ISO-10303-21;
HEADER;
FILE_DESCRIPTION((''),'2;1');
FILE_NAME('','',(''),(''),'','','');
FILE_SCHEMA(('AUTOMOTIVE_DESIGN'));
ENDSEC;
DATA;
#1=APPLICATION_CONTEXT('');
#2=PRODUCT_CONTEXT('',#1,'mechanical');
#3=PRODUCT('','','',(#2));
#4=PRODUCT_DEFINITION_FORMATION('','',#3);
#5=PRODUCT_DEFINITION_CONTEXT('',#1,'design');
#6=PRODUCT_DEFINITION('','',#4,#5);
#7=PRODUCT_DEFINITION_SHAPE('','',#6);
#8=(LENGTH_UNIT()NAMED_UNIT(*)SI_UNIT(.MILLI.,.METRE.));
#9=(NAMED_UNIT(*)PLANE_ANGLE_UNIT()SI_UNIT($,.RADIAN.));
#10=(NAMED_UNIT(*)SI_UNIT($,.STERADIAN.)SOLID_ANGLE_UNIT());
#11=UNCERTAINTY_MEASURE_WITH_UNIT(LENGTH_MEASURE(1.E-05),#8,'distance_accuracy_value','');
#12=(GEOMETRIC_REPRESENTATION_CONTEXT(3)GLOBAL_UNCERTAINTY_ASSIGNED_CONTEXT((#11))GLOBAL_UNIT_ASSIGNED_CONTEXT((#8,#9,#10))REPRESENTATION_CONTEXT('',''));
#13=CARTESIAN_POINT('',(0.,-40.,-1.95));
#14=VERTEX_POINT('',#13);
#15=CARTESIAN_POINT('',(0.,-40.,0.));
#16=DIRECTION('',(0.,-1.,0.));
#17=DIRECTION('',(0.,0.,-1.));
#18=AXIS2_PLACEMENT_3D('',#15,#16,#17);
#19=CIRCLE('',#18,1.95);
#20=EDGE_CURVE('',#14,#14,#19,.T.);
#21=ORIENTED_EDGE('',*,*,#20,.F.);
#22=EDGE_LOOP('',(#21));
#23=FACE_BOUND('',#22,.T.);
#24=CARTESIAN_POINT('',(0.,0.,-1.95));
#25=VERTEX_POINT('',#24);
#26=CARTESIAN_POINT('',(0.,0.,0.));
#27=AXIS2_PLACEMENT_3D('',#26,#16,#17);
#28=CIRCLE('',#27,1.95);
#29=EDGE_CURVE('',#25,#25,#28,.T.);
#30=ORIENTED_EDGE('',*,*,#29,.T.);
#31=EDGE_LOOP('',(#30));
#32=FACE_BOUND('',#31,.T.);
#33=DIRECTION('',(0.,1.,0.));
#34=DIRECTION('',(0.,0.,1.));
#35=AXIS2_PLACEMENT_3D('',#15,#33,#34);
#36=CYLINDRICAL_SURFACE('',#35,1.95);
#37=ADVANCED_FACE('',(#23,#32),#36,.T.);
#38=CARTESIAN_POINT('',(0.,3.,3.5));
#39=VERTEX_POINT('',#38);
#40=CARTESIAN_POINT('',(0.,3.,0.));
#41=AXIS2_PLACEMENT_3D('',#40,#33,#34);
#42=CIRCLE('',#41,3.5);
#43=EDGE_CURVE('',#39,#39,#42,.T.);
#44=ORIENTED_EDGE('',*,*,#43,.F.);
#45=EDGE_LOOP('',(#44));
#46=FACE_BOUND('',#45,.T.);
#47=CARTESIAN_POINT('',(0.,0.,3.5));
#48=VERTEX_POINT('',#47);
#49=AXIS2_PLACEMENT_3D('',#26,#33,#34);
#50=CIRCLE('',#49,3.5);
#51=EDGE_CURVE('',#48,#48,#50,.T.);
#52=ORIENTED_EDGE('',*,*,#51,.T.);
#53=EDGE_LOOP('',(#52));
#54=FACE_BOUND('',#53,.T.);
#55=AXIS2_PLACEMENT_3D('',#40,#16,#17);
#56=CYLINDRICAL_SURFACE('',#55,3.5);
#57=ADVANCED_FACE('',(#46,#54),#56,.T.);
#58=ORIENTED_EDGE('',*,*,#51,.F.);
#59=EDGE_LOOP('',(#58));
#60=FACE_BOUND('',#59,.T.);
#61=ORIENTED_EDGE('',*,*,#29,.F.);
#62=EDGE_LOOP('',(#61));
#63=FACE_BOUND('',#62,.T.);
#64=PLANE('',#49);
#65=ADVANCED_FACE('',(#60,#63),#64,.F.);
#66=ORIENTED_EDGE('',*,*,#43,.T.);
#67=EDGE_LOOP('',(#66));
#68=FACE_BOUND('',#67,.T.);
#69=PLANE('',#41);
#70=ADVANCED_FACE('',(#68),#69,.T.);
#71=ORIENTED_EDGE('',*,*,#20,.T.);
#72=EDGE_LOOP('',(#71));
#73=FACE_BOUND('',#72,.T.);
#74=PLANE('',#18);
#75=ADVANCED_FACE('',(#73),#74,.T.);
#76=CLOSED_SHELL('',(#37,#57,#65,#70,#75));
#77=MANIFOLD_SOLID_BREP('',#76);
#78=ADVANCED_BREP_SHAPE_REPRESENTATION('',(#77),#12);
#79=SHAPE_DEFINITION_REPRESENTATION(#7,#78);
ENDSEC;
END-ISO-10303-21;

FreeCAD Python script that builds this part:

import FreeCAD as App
import Part
import Sketcher
from FreeCAD import Vector

doc = App.newDocument("Part")
params = doc.addObject("Spreadsheet::Sheet", "Params")
for row, (alias, value) in enumerate([
    ("sketch1_diameter", "7 mm"),
    ("pad1_length", "3 mm"),
    ("sketch2_diameter", "3.9 mm"),
    ("pad2_length", "40 mm"),
], start=1):
    params.set(f"A{row}", alias)
    params.set(f"B{row}", "=" + value)
    params.setAlias(f"B{row}", alias)

body = doc.addObject("PartDesign::Body", "Body")

sketch1 = doc.addObject("Sketcher::SketchObject", "Sketch")
body.addObject(sketch1)
sketch1.AttachmentSupport = (doc.XZ_Plane, [""])
sketch1.MapMode = "FlatFace"
sketch1.addGeometry(Part.Circle(Vector(0, 0, 0), Vector(0, 0, 1), 3.5), False)
sketch1.addConstraint(Sketcher.Constraint("Coincident", 0, 3, -1, 1))
sketch1.addConstraint(Sketcher.Constraint("Diameter", 0, 7.0))
sketch1.setExpression("Constraints[1]", "Params.sketch1_diameter")
pad1 = doc.addObject("PartDesign::Pad", "Pad")
body.addObject(pad1)
pad1.Profile = sketch1
pad1.setExpression("Length", "Params.pad1_length")
pad1.Reversed = True

sketch2 = doc.addObject("Sketcher::SketchObject", "Sketch001")
body.addObject(sketch2)
sketch2.AttachmentSupport = (doc.XZ_Plane, [""])
sketch2.MapMode = "FlatFace"
sketch2.addGeometry(Part.Circle(Vector(0, 0, 0), Vector(0, 0, 1), 1.9), False)
sketch2.addConstraint(Sketcher.Constraint("Coincident", 0, 3, -1, 1))
sketch2.addConstraint(Sketcher.Constraint("Diameter", 0, 3.9))
sketch2.setExpression("Constraints[1]", "Params.sketch2_diameter")
pad2 = doc.addObject("PartDesign::Pad", "Pad001")
body.addObject(pad2)
pad2.Profile = sketch2
pad2.setExpression("Length", "Params.pad2_length")

doc.recompute()
